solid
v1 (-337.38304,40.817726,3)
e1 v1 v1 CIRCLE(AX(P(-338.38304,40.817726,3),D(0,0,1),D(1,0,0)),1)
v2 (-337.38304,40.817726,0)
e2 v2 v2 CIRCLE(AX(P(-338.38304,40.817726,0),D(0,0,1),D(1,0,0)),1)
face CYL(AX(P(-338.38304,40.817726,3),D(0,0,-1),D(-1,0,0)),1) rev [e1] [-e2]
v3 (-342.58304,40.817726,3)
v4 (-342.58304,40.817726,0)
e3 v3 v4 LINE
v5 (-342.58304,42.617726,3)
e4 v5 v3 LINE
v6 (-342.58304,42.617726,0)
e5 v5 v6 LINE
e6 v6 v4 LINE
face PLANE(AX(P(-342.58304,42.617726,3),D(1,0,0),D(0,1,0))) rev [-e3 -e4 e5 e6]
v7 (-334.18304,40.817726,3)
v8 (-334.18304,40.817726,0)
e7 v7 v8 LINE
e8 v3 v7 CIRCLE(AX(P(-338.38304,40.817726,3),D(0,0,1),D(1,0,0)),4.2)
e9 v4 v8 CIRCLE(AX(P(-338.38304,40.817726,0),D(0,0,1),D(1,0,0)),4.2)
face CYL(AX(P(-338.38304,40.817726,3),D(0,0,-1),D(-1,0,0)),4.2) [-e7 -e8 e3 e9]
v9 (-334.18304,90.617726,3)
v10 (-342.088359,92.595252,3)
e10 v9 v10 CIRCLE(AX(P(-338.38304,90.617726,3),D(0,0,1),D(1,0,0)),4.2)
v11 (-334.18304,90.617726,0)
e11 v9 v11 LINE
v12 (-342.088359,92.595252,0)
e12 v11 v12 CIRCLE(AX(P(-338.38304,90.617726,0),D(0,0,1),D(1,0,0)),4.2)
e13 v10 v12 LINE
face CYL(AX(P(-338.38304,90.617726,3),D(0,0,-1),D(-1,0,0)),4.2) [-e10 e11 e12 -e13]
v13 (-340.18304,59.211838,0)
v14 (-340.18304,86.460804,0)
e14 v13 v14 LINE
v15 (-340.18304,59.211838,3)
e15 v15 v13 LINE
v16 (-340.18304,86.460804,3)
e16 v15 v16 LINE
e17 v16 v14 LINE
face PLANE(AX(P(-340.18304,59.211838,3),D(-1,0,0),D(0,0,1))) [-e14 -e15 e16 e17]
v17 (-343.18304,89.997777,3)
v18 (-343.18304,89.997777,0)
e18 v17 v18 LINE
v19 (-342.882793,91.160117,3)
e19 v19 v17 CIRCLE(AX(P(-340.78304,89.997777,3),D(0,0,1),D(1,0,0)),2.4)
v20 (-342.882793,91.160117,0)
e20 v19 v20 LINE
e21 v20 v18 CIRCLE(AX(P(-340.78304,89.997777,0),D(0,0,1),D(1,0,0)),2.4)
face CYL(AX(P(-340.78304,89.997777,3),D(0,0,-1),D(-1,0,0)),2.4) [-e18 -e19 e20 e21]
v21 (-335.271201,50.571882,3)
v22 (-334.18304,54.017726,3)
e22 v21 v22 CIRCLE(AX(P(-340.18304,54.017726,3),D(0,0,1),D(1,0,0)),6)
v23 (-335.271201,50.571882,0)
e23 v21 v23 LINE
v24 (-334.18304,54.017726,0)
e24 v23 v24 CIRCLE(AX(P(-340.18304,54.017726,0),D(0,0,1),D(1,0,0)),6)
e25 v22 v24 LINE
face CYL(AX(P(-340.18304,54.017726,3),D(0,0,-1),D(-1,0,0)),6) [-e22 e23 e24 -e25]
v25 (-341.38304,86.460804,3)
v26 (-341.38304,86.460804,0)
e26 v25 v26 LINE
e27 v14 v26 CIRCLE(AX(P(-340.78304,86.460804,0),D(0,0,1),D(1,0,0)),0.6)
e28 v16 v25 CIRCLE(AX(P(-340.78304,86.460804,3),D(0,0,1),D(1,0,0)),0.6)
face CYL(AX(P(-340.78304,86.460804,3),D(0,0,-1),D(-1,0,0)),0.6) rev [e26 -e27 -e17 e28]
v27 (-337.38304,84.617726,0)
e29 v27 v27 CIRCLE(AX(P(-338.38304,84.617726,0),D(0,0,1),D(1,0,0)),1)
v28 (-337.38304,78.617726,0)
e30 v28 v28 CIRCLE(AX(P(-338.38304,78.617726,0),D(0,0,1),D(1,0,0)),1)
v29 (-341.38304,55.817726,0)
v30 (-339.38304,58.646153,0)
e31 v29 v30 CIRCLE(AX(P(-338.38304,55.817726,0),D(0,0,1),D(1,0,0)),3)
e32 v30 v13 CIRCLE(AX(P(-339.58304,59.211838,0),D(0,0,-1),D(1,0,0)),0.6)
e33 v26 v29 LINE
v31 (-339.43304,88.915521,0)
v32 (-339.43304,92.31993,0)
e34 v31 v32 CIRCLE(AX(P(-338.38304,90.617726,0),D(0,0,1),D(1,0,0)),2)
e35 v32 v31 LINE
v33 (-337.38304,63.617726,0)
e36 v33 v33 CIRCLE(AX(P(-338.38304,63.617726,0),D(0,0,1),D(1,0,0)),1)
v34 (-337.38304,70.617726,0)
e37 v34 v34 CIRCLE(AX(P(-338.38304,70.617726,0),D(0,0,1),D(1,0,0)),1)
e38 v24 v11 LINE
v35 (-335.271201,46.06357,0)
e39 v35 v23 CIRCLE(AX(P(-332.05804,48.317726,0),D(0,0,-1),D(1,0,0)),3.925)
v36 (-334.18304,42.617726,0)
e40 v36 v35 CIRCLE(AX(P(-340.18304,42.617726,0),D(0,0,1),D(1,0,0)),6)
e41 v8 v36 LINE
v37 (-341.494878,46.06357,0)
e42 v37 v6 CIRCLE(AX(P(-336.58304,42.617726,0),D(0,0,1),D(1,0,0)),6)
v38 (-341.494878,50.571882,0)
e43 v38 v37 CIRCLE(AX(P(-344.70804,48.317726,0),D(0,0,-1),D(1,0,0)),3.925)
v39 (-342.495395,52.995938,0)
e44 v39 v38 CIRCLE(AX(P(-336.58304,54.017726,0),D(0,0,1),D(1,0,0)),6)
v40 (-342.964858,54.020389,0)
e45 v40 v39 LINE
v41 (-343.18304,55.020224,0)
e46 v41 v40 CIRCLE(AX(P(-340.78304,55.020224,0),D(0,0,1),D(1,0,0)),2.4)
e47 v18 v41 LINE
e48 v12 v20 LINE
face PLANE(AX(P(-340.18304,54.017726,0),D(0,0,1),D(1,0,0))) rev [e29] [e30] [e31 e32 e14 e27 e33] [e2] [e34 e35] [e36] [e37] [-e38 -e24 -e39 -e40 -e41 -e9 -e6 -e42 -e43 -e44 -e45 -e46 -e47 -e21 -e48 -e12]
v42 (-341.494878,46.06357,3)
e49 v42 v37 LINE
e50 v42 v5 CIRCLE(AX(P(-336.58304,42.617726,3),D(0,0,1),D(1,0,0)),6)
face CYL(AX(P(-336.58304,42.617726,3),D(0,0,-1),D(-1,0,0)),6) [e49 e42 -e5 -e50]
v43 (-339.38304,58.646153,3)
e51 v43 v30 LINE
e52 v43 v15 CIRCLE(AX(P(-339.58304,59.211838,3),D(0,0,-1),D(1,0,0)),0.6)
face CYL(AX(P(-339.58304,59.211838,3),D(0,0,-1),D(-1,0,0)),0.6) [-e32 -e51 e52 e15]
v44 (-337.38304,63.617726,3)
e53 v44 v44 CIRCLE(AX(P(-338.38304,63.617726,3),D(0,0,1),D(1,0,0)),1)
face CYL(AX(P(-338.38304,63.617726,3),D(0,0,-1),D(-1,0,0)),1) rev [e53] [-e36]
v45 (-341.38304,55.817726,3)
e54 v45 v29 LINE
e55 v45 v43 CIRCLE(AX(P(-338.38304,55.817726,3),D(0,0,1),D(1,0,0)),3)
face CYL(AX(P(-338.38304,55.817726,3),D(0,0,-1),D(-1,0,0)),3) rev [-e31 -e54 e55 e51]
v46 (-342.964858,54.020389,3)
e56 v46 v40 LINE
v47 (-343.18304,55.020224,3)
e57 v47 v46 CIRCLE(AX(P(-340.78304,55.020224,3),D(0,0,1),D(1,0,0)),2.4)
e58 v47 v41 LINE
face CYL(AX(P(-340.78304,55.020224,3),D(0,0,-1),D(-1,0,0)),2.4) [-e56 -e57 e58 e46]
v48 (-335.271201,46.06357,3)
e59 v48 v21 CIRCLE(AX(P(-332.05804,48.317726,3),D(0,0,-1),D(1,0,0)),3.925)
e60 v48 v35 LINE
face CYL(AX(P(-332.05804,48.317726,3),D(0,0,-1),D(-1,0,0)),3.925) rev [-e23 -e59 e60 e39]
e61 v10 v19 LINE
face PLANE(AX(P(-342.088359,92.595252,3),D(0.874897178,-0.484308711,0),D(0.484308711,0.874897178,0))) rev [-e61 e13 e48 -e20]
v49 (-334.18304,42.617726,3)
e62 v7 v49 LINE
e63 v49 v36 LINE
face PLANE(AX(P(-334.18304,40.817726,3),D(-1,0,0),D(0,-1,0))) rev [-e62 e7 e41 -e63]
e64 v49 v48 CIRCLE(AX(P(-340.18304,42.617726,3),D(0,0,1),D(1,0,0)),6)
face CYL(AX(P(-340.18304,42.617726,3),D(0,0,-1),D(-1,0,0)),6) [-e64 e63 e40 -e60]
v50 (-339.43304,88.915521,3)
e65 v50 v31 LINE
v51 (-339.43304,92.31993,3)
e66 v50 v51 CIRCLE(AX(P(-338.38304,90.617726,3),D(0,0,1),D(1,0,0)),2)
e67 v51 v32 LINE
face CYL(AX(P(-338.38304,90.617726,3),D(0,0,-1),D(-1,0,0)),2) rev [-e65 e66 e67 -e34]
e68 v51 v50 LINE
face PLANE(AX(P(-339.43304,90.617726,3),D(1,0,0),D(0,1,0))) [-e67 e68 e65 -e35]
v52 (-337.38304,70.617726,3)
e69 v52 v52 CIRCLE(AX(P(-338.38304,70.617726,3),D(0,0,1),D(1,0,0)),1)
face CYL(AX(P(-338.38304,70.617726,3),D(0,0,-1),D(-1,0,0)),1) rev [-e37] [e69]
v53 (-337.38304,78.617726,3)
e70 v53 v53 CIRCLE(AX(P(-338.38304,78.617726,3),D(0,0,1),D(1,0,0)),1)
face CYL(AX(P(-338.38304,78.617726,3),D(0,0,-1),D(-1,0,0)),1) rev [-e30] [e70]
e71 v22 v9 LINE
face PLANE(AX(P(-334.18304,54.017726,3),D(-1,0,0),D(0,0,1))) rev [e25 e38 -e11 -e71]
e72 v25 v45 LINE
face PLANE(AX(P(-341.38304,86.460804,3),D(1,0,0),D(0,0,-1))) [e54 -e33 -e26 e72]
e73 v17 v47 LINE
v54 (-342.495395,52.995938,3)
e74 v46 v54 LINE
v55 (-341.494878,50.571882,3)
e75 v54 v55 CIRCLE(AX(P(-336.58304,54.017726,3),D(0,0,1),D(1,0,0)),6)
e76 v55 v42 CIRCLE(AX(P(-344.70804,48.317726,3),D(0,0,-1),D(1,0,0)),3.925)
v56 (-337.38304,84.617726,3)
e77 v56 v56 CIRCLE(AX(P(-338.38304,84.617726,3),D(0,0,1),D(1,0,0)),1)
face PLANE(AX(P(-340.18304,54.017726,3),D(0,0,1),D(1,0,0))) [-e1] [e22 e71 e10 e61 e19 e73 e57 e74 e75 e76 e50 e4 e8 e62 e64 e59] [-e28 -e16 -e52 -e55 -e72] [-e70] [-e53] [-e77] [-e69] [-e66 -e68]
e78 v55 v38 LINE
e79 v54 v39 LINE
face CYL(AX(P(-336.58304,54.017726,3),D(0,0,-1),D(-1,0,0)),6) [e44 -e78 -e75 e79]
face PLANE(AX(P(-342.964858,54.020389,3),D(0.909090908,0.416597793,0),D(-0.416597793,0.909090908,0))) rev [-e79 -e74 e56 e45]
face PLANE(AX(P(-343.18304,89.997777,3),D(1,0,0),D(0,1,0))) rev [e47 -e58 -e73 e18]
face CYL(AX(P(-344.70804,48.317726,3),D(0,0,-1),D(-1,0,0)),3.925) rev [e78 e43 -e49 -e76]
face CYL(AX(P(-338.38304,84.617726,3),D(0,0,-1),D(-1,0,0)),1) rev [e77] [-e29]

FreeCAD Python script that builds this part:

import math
import FreeCAD as App
import Part
import Sketcher
from FreeCAD import Vector

doc = App.newDocument("Part")
body = doc.addObject("PartDesign::Body", "Body")

sketch1 = doc.addObject("Sketcher::SketchObject", "Sketch")
body.addObject(sketch1)
sketch1.AttachmentSupport = (doc.XY_Plane, [""])
sketch1.MapMode = "FlatFace"
sketch1.addGeometry([
    Part.LineSegment(Vector(-334.2, 54, 0), Vector(-334.2, 90.6, 0)),
    Part.ArcOfCircle(Part.Circle(Vector(-338.4, 90.6, 0), Vector(0, 0, 1), 4.2), math.radians(0), math.radians(152)),
    Part.LineSegment(Vector(-342.1, 92.6, 0), Vector(-342.9, 91.2, 0)),
    Part.ArcOfCircle(Part.Circle(Vector(-340.8, 90, 0), Vector(0, 0, 1), 2.4), math.radians(151), math.radians(180)),
    Part.LineSegment(Vector(-343.2, 90, 0), Vector(-343.2, 55, 0)),
    Part.ArcOfCircle(Part.Circle(Vector(-340.8, 55, 0), Vector(0, 0, 1), 2.4), math.radians(180), math.radians(205)),
    Part.LineSegment(Vector(-343, 54, 0), Vector(-342.5, 53, 0)),
    Part.ArcOfCircle(Part.Circle(Vector(-336.6, 54, 0), Vector(0, 0, 1), 6), math.radians(-170), math.radians(-145)),
    Part.ArcOfCircle(Part.Circle(Vector(-344.7, 48.3, 0), Vector(0, 0, 1), 3.9), math.radians(-35), math.radians(35)),
    Part.ArcOfCircle(Part.Circle(Vector(-336.6, 42.6, 0), Vector(0, 0, 1), 6), math.radians(145), math.radians(180)),
    Part.LineSegment(Vector(-342.6, 42.6, 0), Vector(-342.6, 40.8, 0)),
    Part.ArcOfCircle(Part.Circle(Vector(-338.4, 40.8, 0), Vector(0, 0, 1), 4.2), math.radians(180), math.radians(360)),
    Part.LineSegment(Vector(-334.2, 40.8, 0), Vector(-334.2, 42.6, 0)),
    Part.ArcOfCircle(Part.Circle(Vector(-340.2, 42.6, 0), Vector(0, 0, 1), 6), math.radians(0), math.radians(35)),
    Part.ArcOfCircle(Part.Circle(Vector(-332.1, 48.3, 0), Vector(0, 0, 1), 3.9), math.radians(145), math.radians(215)),
    Part.ArcOfCircle(Part.Circle(Vector(-340.2, 54, 0), Vector(0, 0, 1), 6), math.radians(-35), math.radians(0)),
    Part.Circle(Vector(-338.4, 40.8, 0), Vector(0, 0, 1), 1),
    Part.Circle(Vector(-338.4, 63.6, 0), Vector(0, 0, 1), 1),
    Part.LineSegment(Vector(-340.2, 86.5, 0), Vector(-340.2, 59.2, 0)),
    Part.ArcOfCircle(Part.Circle(Vector(-339.6, 59.2, 0), Vector(0, 0, 1), 0.6), math.radians(180), math.radians(289)),
    Part.ArcOfCircle(Part.Circle(Vector(-338.4, 55.8, 0), Vector(0, 0, 1), 3), math.radians(180), math.radians(469)),
    Part.LineSegment(Vector(-341.4, 55.8, 0), Vector(-341.4, 86.5, 0)),
    Part.ArcOfCircle(Part.Circle(Vector(-340.8, 86.5, 0), Vector(0, 0, 1), 0.6), math.radians(0), math.radians(180)),
    Part.Circle(Vector(-338.4, 70.6, 0), Vector(0, 0, 1), 1),
    Part.Circle(Vector(-338.4, 78.6, 0), Vector(0, 0, 1), 1),
    Part.Circle(Vector(-338.4, 84.6, 0), Vector(0, 0, 1), 1),
    Part.ArcOfCircle(Part.Circle(Vector(-338.4, 90.6, 0), Vector(0, 0, 1), 2), math.radians(-122), math.radians(122)),
    Part.LineSegment(Vector(-339.4, 88.9, 0), Vector(-339.4, 92.3, 0)),
], False)
sketch1.addConstraint([
    Sketcher.Constraint("Tangent", 0, 2, 1, 1),
    Sketcher.Constraint("Coincident", 1, 2, 2, 1),
    Sketcher.Constraint("Tangent", 2, 2, 3, 1),
    Sketcher.Constraint("Tangent", 3, 2, 4, 1),
    Sketcher.Constraint("Tangent", 4, 2, 5, 1),
    Sketcher.Constraint("Tangent", 5, 2, 6, 1),
    Sketcher.Constraint("Coincident", 6, 2, 7, 1),
    Sketcher.Constraint("Tangent", 7, 2, 8, 2),
    Sketcher.Constraint("Tangent", 8, 1, 9, 1),
    Sketcher.Constraint("Tangent", 9, 2, 10, 1),
    Sketcher.Constraint("Tangent", 10, 2, 11, 1),
    Sketcher.Constraint("Tangent", 11, 2, 12, 1),
    Sketcher.Constraint("Tangent", 12, 2, 13, 1),
    Sketcher.Constraint("Tangent", 13, 2, 14, 2),
    Sketcher.Constraint("Tangent", 14, 1, 15, 1),
    Sketcher.Constraint("Tangent", 15, 2, 0, 1),
    Sketcher.Constraint("Tangent", 18, 2, 19, 1),
    Sketcher.Constraint("Tangent", 19, 2, 20, 2),
    Sketcher.Constraint("Tangent", 20, 1, 21, 1),
    Sketcher.Constraint("Tangent", 21, 2, 22, 2),
    Sketcher.Constraint("Tangent", 22, 1, 18, 1),
    Sketcher.Constraint("Coincident", 26, 1, 27, 1),
    Sketcher.Constraint("Coincident", 27, 2, 26, 2),
    Sketcher.Constraint("Vertical", 0),
    Sketcher.Constraint("Vertical", 4),
    Sketcher.Constraint("Vertical", 10),
    Sketcher.Constraint("Vertical", 12),
    Sketcher.Constraint("Vertical", 18),
    Sketcher.Constraint("Vertical", 21),
    Sketcher.Constraint("Vertical", 27),
    Sketcher.Constraint("Coincident", 16, 3, 11, 3),
    Sketcher.Constraint("Coincident", 26, 3, 1, 3),
    Sketcher.Constraint("Equal", 3, 5),
    Sketcher.Constraint("Equal", 7, 9),
    Sketcher.Constraint("Equal", 1, 11),
    Sketcher.Constraint("Equal", 9, 13),
    Sketcher.Constraint("Equal", 8, 14),
    Sketcher.Constraint("Equal", 13, 15),
    Sketcher.Constraint("Equal", 16, 17),
    Sketcher.Constraint("Equal", 19, 22),
    Sketcher.Constraint("Equal", 17, 23),
    Sketcher.Constraint("Equal", 23, 24),
    Sketcher.Constraint("Equal", 24, 25),
    Sketcher.Constraint("Horizontal", 9, 3, 13, 3),
    Sketcher.Constraint("Horizontal", 8, 3, 14, 3),
    Sketcher.Constraint("Horizontal", 7, 3, 15, 3),
    Sketcher.Constraint("Vertical", 7, 3, 9, 3),
    Sketcher.Constraint("Vertical", 16, 3, 17, 3),
    Sketcher.Constraint("Vertical", 17, 3, 20, 3),
    Sketcher.Constraint("Vertical", 5, 3, 22, 3),
    Sketcher.Constraint("Vertical", 20, 3, 23, 3),
    Sketcher.Constraint("Vertical", 23, 3, 24, 3),
    Sketcher.Constraint("Vertical", 24, 3, 25, 3),
    Sketcher.Constraint("Vertical", 15, 3, 18, 2),
    Sketcher.Constraint("Diameter", 16, 2.0),
    Sketcher.Constraint("Radius", 7, 6.0),
    Sketcher.Constraint("Radius", 20, 3.0),
    Sketcher.Constraint("Radius", 26, 2.0),
    Sketcher.Constraint("Radius", 1, 4.2),
    Sketcher.Constraint("Radius", 3, 2.4),
    Sketcher.Constraint("DistanceY", 0, 1, 0, 2, 36.6),
    Sketcher.Constraint("DistanceY", 10, 2, 10, 1, 1.8),
    Sketcher.Constraint("Radius", 8, 3.925),
    Sketcher.Constraint("DistanceY", 9, 3, 1, 3, 48.0),
    Sketcher.Constraint("DistanceY", 17, 3, 23, 3, 7.0),
    Sketcher.Constraint("DistanceY", 23, 3, 24, 3, 8.0),
    Sketcher.Constraint("DistanceY", 24, 3, 1, 3, 12.0),
    Sketcher.Constraint("DistanceY", 25, 3, 1, 3, 6.0),
    Sketcher.Constraint("DistanceY", 15, 3, 20, 3, 1.8),
    Sketcher.Constraint("DistanceX", 3, 3, 26, 1, 1.35),
    Sketcher.Constraint("DistanceY", 21, 1, 21, 2, 30.643078),
    Sketcher.Constraint("DistanceX", 13, 2, -1, 1, 335.271201),
    Sketcher.Constraint("DistanceY", 5, 3, 1, 3, 35.597502),
    Sketcher.Constraint("DistanceY", 4, 2, 4, 1, 34.977553),
    Sketcher.Constraint("DistanceY", -1, 1, 19, 3, 59.211838),
    Sketcher.Constraint("DistanceX", 1, 2, -1, 1, 342.088359),
    Sketcher.Constraint("DistanceY", -1, 1, 5, 2, 54.020389),
])
pad1 = doc.addObject("PartDesign::Pad", "Pad")
body.addObject(pad1)
pad1.Profile = sketch1
pad1.Length = 3

doc.recompute()
